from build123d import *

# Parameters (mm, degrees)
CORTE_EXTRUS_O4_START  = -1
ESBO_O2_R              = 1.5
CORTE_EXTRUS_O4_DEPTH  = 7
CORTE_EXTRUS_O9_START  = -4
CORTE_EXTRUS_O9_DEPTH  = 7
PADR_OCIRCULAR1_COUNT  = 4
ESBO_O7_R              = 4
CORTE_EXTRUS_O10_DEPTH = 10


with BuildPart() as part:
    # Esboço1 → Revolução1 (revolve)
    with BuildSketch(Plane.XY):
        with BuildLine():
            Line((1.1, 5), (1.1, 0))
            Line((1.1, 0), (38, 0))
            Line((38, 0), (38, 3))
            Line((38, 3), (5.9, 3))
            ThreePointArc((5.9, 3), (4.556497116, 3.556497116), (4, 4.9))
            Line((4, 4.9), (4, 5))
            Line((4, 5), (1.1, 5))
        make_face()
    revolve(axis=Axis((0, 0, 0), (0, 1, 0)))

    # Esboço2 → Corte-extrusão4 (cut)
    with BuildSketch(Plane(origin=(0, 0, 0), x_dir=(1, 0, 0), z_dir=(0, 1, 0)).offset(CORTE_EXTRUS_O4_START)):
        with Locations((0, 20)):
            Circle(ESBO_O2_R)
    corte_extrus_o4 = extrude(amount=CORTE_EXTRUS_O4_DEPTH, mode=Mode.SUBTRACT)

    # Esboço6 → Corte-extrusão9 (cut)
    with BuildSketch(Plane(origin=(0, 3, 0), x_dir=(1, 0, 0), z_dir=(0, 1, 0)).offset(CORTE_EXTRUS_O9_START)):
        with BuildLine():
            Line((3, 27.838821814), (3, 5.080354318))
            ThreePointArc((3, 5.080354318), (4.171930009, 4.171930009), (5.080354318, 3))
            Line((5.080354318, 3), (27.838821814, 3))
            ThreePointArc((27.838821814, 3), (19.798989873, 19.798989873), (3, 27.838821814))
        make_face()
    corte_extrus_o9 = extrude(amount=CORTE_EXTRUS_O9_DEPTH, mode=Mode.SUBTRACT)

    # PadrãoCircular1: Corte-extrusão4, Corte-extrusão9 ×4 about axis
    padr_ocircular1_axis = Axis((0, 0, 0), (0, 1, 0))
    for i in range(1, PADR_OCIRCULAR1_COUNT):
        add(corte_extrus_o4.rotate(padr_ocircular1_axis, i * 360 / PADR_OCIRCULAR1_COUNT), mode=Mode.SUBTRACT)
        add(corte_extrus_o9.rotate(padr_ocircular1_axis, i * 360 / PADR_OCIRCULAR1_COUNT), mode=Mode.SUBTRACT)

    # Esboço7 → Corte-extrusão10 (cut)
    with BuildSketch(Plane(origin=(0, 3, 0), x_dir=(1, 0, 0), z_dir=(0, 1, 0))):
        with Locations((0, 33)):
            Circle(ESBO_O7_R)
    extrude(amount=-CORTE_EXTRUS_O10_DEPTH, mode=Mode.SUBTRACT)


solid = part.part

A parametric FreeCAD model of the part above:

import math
import FreeCAD as App
import Part
import Sketcher
from FreeCAD import Vector

doc = App.newDocument("Part")
params = doc.addObject("Spreadsheet::Sheet", "Params")
for row, (alias, value) in enumerate([
    ("sketch1_radius", "1.9 mm"),
    ("sketch1_height", "5 mm"),
    ("sketch1_height2", "3 mm"),
    ("sketch1_width", "36.9 mm"),
    ("sketch1_width2", "32.1 mm"),
    ("revolution_angle", "360 deg"),
    ("sketch2_diameter", "3 mm"),
    ("pocket1_length", "7 mm"),
    ("sketch3_radius", "28 mm"),
    ("sketch3_radius2", "5.9 mm"),
    ("pocket2_length", "7 mm"),
    ("sketch4_diameter", "8 mm"),
    ("pocket3_length", "10 mm"),
], start=1):
    params.set(f"A{row}", alias)
    params.set(f"B{row}", "=" + value)
    params.setAlias(f"B{row}", alias)

body = doc.addObject("PartDesign::Body", "Body")

# Sketch on XY plane
sketch1 = body.newObject("Sketcher::SketchObject", "Sketch")
sketch1.AttachmentSupport = (doc.getObject("XY_Plane"), [""])
sketch1.MapMode = "FlatFace"
sketch1.addGeometry([
    Part.LineSegment(Vector(1.1, 5, 0), Vector(1.1, 0, 0)),  # 0
    Part.LineSegment(Vector(1.1, 0, 0), Vector(38, 0, 0)),  # 1
    Part.LineSegment(Vector(38, 0, 0), Vector(38, 3, 0)),  # 2
    Part.LineSegment(Vector(38, 3, 0), Vector(5.9, 3, 0)),  # 3
    Part.ArcOfCircle(Part.Circle(Vector(5.9, 4.9, 0), Vector(0, 0, 1), 1.9), math.radians(-180), math.radians(-90)),  # 4
    Part.LineSegment(Vector(4, 4.9, 0), Vector(4, 5, 0)),  # 5
    Part.LineSegment(Vector(4, 5, 0), Vector(1.1, 5, 0)),  # 6
], False)
sketch1.addConstraint([
    Sketcher.Constraint("Coincident", 0, 2, 1, 1),
    Sketcher.Constraint("Coincident", 1, 2, 2, 1),
    Sketcher.Constraint("Coincident", 2, 2, 3, 1),
    Sketcher.Constraint("Tangent", 3, 2, 4, 2),
    Sketcher.Constraint("Tangent", 4, 1, 5, 1),
    Sketcher.Constraint("Coincident", 5, 2, 6, 1),
    Sketcher.Constraint("Coincident", 6, 2, 0, 1),
    Sketcher.Constraint("Vertical", 0),
    Sketcher.Constraint("Horizontal", 1),
    Sketcher.Constraint("Vertical", 2),
    Sketcher.Constraint("Horizontal", 3),
    Sketcher.Constraint("Vertical", 5),
    Sketcher.Constraint("Horizontal", 6),
    Sketcher.Constraint("PointOnObject", 0, 2, -1),
    Sketcher.Constraint("Radius", 4, 1.9),
    Sketcher.Constraint("DistanceY", 0, 2, 0, 1, 5.0),
    Sketcher.Constraint("DistanceY", 2, 1, 2, 2, 3.0),
    Sketcher.Constraint("DistanceX", 1, 1, 1, 2, 36.9),
    Sketcher.Constraint("DistanceX", 3, 2, 3, 1, 32.1),
    Sketcher.Constraint("DistanceX", -1, 1, 1, 2, 38.0),
])
sketch1.setExpression("Constraints[14]", "Params.sketch1_radius")
sketch1.setExpression("Constraints[15]", "Params.sketch1_height")
sketch1.setExpression("Constraints[16]", "Params.sketch1_height2")
sketch1.setExpression("Constraints[17]", "Params.sketch1_width")
sketch1.setExpression("Constraints[18]", "Params.sketch1_width2")
revolution = body.newObject("PartDesign::Revolution", "Revolution")
revolution.Profile = sketch1
revolution.ReferenceAxis = (sketch1, ["V_Axis"])
revolution.setExpression("Angle", "Params.revolution_angle")

# Sketch on XZ plane
sketch2 = body.newObject("Sketcher::SketchObject", "Sketch001")
sketch2.AttachmentSupport = (doc.getObject("XZ_Plane"), [""])
sketch2.MapMode = "FlatFace"
sketch2.AttachmentOffset = App.Placement(Vector(0, 0, 1), App.Rotation())
sketch2.addGeometry(Part.Circle(Vector(0, -20, 0), Vector(0, 0, 1), 1.5), False)
sketch2.addConstraint([
    Sketcher.Constraint("PointOnObject", 0, 3, -2),
    Sketcher.Constraint("Diameter", 0, 3.0),
    Sketcher.Constraint("DistanceY", 0, 3, -1, 1, 20.0),
])
sketch2.setExpression("Constraints[1]", "Params.sketch2_diameter")
pocket1 = body.newObject("PartDesign::Pocket", "Pocket")
pocket1.Profile = sketch2
pocket1.setExpression("Length", "Params.pocket1_length")

# Sketch on XZ plane
sketch3 = body.newObject("Sketcher::SketchObject", "Sketch002")
sketch3.AttachmentSupport = (doc.getObject("XZ_Plane"), [""])
sketch3.MapMode = "FlatFace"
sketch3.AttachmentOffset = App.Placement(Vector(0, 0, 1), App.Rotation())
sketch3.addGeometry([
    Part.LineSegment(Vector(3, -27.838822, 0), Vector(3, -5.080354, 0)),
    Part.ArcOfCircle(Part.Circle(Vector(0, 0, 0), Vector(0, 0, 1), 5.9), math.radians(-59.437725), math.radians(-30.562275)),
    Part.LineSegment(Vector(5.080354, -3, 0), Vector(27.838822, -3, 0)),
    Part.ArcOfCircle(Part.Circle(Vector(0, 0, 0), Vector(0, 0, 1), 28), math.radians(-83.84936), math.radians(-6.15064)),
], False)
sketch3.addConstraint([
    Sketcher.Constraint("Coincident", 0, 2, 1, 1),
    Sketcher.Constraint("Coincident", 1, 2, 2, 1),
    Sketcher.Constraint("Coincident", 2, 2, 3, 2),
    Sketcher.Constraint("Coincident", 3, 1, 0, 1),
    Sketcher.Constraint("Vertical", 0),
    Sketcher.Constraint("Horizontal", 2),
    Sketcher.Constraint("Coincident", 1, 3, -1, 1),
    Sketcher.Constraint("Coincident", 3, 3, -1, 1),
    Sketcher.Constraint("Equal", 2, 0),
    Sketcher.Constraint("Radius", 3, 28.0),
    Sketcher.Constraint("Radius", 1, 5.9),
    Sketcher.Constraint("DistanceX", -1, 1, 0, 2, 3.0),
])
sketch3.setExpression("Constraints[9]", "Params.sketch3_radius")
sketch3.setExpression("Constraints[10]", "Params.sketch3_radius2")
pocket2 = body.newObject("PartDesign::Pocket", "Pocket001")
pocket2.Profile = sketch3
pocket2.setExpression("Length", "Params.pocket2_length")
doc.recompute()

polarpattern = body.newObject("PartDesign::PolarPattern", "PolarPattern")
polarpattern.Originals = [pocket1, pocket2]
polarpattern.Axis = (doc.getObject("Y_Axis"), [""])
polarpattern.Angle = 360
polarpattern.Occurrences = 4
body.Tip = polarpattern

# Sketch on XZ plane
sketch4 = body.newObject("Sketcher::SketchObject", "Sketch003")
sketch4.AttachmentSupport = (doc.getObject("XZ_Plane"), [""])
sketch4.MapMode = "FlatFace"
sketch4.AttachmentOffset = App.Placement(Vector(0, 0, -3), App.Rotation())
sketch4.addGeometry(Part.Circle(Vector(0, -33, 0), Vector(0, 0, 1), 4), False)
sketch4.addConstraint([
    Sketcher.Constraint("PointOnObject", 0, 3, -2),
    Sketcher.Constraint("Diameter", 0, 8.0),
    Sketcher.Constraint("DistanceY", 0, 3, -1, 1, 33.0),
])
sketch4.setExpression("Constraints[1]", "Params.sketch4_diameter")
pocket3 = body.newObject("PartDesign::Pocket", "Pocket002")
pocket3.Profile = sketch4
pocket3.setExpression("Length", "Params.pocket3_length")
pocket3.Reversed = True

doc.recompute()
